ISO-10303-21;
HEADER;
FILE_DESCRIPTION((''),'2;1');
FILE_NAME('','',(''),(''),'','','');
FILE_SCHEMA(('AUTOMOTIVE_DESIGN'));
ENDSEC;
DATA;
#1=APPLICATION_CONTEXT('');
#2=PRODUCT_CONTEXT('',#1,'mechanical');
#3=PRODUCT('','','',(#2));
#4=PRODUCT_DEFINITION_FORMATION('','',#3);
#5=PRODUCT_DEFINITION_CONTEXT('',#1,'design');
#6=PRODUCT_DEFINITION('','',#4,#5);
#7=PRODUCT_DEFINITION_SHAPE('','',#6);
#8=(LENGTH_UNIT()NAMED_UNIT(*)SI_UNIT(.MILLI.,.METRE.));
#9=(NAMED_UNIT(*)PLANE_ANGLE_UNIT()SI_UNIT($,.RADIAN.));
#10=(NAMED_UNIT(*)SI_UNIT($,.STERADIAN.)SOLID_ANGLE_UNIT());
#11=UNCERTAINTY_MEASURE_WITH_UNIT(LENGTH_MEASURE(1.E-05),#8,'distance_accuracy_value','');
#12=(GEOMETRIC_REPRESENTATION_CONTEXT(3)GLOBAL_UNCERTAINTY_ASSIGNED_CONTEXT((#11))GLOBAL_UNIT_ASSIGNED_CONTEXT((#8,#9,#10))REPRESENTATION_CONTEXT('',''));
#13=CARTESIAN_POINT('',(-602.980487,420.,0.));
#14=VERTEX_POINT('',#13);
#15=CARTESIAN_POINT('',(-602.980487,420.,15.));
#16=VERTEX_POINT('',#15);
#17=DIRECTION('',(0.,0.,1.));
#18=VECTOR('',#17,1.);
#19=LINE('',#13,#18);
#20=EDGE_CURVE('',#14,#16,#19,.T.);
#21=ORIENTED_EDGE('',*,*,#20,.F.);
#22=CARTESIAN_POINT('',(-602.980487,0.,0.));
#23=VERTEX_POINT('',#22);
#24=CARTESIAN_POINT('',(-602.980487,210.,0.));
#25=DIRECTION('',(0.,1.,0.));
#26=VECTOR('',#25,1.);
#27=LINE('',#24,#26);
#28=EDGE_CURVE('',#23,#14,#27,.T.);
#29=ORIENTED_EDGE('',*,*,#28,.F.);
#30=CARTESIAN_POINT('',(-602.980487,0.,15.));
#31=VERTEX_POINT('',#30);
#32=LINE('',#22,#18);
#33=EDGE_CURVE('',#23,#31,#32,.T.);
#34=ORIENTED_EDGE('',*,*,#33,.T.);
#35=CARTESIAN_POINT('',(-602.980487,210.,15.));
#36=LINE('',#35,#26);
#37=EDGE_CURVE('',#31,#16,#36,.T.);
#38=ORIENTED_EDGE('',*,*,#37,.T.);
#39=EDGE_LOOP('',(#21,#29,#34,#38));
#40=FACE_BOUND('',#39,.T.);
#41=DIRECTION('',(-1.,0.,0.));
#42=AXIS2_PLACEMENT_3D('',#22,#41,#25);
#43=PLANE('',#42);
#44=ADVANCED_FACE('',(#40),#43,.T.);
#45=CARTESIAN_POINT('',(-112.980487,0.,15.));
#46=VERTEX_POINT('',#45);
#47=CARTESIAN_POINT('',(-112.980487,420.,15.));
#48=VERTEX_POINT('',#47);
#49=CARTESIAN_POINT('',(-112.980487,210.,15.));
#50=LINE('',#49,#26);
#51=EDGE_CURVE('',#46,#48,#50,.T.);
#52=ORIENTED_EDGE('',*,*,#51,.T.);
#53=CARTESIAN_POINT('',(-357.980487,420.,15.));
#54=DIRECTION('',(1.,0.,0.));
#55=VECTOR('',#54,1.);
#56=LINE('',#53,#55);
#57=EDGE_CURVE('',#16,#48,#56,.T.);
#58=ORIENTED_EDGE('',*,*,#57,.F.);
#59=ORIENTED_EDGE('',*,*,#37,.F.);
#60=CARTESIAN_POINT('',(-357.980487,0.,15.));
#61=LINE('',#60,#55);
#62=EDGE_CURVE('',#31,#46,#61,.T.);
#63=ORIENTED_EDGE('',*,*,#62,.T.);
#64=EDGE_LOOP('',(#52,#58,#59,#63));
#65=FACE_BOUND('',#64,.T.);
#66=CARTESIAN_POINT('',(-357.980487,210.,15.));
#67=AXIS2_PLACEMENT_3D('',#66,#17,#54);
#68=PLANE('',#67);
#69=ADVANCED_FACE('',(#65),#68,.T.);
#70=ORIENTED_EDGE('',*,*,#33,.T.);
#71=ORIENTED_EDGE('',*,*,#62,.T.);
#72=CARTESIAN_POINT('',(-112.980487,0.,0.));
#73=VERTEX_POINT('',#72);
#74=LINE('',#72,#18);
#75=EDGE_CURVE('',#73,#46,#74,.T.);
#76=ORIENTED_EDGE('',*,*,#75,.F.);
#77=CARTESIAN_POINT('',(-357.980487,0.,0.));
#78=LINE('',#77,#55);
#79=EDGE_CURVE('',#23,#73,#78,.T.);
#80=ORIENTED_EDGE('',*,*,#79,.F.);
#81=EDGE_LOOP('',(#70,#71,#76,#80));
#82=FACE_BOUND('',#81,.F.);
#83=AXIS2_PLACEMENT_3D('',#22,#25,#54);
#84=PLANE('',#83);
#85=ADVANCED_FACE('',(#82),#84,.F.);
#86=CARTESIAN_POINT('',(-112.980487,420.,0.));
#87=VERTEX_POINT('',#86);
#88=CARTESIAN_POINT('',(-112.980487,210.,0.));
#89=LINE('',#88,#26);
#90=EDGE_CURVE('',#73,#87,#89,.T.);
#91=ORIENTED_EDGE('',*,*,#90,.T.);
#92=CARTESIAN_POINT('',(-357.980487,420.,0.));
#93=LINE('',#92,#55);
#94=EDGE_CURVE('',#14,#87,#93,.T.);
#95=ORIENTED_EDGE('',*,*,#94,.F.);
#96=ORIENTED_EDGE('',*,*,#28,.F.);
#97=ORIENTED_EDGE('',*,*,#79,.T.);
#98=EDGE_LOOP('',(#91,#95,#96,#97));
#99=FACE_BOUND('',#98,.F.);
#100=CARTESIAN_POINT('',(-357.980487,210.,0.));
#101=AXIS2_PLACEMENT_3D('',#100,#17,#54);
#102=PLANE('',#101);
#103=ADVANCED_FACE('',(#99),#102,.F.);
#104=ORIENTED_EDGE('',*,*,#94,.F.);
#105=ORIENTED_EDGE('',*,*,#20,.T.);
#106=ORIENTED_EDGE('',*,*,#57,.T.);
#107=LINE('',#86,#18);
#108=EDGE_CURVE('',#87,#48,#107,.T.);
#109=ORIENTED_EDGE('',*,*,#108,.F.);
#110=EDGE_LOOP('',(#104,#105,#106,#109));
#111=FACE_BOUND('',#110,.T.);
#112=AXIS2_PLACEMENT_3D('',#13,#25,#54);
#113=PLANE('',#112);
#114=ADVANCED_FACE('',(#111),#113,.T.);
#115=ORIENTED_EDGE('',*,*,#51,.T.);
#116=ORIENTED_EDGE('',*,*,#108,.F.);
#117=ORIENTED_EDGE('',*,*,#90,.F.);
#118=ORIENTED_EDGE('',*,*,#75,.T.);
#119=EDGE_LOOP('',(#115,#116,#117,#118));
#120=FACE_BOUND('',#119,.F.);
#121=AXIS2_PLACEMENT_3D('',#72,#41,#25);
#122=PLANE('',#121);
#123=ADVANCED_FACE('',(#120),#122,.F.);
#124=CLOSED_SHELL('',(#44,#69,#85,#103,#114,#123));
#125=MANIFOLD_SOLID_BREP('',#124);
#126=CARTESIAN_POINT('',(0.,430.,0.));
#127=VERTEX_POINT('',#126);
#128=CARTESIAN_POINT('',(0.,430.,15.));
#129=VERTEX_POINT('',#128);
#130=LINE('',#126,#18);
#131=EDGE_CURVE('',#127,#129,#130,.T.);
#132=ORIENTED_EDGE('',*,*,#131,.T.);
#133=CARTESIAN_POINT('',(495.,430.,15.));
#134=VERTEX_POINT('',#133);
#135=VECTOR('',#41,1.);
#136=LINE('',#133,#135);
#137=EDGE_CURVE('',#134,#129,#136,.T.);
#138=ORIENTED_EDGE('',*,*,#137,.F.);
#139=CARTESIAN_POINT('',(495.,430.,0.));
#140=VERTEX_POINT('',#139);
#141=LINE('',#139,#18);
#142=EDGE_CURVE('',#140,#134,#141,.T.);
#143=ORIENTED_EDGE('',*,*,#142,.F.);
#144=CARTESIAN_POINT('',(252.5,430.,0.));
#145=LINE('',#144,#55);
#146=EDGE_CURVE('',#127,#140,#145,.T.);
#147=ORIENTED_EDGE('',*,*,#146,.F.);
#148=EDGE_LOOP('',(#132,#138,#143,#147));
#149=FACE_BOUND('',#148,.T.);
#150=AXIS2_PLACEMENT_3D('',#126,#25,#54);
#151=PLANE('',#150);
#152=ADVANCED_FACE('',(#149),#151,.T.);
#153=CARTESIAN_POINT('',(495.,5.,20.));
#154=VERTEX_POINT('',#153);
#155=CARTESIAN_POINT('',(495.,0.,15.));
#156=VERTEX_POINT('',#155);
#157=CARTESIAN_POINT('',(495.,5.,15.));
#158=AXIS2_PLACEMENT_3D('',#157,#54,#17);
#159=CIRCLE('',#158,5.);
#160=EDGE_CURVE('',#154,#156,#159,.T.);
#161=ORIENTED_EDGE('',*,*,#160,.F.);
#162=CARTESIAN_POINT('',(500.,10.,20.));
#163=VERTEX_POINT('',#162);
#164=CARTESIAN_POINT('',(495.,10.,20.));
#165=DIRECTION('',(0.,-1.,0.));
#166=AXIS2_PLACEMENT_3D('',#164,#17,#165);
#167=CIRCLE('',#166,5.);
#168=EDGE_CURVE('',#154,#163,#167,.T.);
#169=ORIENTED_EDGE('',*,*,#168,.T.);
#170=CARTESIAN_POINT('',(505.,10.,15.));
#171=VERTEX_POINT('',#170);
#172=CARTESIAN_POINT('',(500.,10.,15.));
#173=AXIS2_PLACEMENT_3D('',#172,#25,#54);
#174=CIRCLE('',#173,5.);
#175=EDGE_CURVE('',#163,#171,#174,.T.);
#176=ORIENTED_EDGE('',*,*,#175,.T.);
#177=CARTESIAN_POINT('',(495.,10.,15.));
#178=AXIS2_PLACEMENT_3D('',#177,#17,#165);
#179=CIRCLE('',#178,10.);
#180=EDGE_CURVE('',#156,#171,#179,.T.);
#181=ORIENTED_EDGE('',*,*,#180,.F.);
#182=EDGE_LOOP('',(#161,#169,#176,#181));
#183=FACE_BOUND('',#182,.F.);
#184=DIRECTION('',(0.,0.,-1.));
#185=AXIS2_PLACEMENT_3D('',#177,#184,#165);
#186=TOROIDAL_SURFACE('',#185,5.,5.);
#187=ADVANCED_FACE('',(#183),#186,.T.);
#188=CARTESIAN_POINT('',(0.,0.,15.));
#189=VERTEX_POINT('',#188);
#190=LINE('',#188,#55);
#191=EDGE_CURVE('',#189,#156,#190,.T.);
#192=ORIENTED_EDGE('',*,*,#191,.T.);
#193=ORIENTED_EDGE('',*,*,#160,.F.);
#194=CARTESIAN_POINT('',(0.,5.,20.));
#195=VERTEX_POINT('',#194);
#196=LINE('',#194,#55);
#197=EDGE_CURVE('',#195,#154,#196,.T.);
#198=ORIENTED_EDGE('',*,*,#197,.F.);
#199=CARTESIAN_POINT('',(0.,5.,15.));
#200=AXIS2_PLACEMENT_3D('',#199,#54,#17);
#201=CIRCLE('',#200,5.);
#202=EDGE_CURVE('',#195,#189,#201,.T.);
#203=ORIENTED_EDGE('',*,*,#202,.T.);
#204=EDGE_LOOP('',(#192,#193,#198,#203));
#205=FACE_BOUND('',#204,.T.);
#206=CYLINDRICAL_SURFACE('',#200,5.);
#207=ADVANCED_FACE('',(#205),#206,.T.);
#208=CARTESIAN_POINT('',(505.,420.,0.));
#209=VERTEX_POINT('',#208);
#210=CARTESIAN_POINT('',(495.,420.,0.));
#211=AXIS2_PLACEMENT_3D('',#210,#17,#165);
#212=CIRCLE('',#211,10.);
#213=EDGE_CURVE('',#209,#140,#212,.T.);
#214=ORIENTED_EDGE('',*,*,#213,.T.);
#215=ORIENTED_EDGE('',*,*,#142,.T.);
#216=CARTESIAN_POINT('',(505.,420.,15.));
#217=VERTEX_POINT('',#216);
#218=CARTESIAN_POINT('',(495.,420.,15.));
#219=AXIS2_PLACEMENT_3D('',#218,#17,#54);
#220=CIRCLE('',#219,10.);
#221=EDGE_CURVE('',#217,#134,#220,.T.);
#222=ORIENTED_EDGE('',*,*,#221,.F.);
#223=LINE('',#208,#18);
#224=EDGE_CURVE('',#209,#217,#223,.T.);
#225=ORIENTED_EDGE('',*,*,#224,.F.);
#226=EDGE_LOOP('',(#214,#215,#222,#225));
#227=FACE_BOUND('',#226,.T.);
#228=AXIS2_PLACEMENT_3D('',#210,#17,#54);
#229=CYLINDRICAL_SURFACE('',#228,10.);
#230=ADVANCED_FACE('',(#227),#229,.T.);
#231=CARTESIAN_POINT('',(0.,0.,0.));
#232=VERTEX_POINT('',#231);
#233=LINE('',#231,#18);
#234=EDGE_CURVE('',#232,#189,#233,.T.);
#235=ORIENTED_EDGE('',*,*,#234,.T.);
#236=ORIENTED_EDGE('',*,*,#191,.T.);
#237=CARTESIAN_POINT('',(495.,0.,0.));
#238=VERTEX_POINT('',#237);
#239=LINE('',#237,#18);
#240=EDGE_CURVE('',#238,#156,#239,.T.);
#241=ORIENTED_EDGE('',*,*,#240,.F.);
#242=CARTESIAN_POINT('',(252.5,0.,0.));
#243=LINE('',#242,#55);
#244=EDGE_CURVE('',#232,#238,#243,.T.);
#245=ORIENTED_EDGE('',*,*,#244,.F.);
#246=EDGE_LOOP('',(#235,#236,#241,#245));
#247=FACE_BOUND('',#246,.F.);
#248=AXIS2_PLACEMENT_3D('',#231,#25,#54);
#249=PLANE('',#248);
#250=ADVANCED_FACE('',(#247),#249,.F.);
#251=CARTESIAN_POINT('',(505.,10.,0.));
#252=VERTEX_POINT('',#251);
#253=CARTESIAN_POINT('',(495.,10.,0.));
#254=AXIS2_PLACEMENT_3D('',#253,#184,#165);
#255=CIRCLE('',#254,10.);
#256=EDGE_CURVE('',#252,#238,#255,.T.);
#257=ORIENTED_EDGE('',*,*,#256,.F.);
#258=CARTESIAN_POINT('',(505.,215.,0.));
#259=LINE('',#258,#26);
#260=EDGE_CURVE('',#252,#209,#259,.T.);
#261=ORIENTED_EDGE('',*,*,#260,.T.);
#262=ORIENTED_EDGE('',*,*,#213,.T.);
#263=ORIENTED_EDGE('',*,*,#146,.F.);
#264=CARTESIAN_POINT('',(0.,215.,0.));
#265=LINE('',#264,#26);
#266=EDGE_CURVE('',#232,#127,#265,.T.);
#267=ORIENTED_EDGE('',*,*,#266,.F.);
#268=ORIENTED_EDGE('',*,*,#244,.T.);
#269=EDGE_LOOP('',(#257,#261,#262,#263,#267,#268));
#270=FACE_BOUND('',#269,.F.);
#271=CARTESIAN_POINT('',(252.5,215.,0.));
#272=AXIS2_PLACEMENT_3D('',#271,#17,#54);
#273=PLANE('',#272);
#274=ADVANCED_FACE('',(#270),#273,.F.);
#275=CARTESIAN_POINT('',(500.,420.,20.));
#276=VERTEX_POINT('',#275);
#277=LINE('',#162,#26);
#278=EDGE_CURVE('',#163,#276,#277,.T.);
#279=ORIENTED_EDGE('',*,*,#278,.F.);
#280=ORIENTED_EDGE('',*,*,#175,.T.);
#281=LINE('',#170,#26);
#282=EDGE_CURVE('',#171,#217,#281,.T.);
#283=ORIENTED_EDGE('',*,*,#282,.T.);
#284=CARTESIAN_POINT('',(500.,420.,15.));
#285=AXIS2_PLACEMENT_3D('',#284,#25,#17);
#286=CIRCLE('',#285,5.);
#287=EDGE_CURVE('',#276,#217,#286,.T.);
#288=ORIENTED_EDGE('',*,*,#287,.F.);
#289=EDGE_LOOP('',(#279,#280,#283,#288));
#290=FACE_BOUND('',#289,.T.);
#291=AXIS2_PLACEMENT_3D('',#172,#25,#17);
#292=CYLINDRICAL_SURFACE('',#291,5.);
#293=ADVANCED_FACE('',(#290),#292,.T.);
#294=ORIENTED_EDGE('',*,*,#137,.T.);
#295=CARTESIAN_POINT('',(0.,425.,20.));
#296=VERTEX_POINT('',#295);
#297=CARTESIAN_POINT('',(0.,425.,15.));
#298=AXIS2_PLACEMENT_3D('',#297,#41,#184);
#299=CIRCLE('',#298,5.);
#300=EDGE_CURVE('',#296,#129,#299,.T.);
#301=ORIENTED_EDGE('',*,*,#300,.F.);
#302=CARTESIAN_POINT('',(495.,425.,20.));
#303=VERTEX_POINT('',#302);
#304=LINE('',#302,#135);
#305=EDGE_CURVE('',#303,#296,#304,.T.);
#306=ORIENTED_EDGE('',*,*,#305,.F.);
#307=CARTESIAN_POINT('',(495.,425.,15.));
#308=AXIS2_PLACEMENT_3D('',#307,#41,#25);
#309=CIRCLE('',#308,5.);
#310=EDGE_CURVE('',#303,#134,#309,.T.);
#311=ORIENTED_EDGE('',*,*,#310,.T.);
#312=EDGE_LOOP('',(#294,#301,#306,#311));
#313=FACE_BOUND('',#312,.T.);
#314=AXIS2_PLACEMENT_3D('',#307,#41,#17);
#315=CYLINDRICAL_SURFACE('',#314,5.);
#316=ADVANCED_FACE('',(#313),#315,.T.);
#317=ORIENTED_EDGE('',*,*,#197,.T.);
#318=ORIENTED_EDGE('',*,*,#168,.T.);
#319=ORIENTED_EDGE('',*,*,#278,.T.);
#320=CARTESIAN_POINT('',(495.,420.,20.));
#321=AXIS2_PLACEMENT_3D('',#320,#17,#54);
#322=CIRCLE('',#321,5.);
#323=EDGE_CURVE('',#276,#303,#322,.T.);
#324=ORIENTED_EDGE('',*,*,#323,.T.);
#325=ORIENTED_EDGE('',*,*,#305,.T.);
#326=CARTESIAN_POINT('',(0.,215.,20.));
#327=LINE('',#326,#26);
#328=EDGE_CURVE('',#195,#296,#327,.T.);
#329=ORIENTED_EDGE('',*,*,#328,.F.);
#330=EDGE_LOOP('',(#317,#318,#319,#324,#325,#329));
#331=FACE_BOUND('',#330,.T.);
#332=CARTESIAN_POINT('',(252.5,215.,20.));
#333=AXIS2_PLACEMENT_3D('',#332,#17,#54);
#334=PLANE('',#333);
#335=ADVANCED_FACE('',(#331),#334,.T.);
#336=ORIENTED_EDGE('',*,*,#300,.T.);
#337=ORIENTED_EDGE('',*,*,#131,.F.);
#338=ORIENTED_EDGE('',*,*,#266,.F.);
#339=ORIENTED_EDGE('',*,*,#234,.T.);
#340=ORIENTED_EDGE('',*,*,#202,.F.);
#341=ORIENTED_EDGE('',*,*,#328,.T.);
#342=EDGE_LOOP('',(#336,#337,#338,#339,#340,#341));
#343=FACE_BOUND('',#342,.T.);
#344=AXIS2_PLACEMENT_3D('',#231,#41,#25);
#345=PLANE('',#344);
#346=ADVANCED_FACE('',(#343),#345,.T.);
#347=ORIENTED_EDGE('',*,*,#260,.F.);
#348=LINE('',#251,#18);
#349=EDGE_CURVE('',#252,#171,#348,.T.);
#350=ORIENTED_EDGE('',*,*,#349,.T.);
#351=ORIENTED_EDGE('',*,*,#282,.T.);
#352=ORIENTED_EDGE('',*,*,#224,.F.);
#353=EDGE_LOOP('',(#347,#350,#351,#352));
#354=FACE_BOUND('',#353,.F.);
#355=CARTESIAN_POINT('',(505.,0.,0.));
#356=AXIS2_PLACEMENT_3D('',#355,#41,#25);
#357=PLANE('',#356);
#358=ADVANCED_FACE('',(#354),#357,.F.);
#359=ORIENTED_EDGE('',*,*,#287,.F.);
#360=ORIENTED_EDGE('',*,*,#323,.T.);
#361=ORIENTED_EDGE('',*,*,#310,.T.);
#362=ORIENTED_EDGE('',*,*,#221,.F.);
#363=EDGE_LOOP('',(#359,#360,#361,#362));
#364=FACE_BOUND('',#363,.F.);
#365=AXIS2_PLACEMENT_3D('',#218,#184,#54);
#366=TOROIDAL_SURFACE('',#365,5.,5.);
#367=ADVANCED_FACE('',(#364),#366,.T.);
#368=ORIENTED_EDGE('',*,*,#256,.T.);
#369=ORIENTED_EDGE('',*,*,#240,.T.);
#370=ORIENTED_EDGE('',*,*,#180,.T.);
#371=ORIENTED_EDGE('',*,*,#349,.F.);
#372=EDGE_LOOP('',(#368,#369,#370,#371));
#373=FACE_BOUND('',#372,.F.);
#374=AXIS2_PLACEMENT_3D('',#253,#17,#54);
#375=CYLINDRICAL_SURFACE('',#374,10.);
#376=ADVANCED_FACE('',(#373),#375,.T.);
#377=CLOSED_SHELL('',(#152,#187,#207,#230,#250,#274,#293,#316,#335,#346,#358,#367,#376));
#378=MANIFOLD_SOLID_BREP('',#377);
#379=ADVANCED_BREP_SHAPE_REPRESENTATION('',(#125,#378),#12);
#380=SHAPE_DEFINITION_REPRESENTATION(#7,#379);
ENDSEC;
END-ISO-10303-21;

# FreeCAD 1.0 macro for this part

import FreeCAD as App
import Part
import Sketcher
from FreeCAD import Vector


def edges_at(feature, points):
    """Names of the edges that pass closest to the given points."""
    edges = feature.Shape.Edges
    near = lambda p: min(range(len(edges)), key=lambda i: edges[i].distToShape(Part.Vertex(*p))[0])
    return sorted({f"Edge{near(p) + 1}" for p in points})

doc = App.newDocument("Part")
body = doc.addObject("PartDesign::Body", "Body")

# Sketch on XY plane
sketch1 = body.newObject("Sketcher::SketchObject", "Sketch")
sketch1.AttachmentSupport = (doc.getObject("XY_Plane"), [""])
sketch1.MapMode = "FlatFace"
sketch1.addGeometry([
    Part.LineSegment(Vector(0, 430, 0), Vector(0, 0, 0)),
    Part.LineSegment(Vector(0, 0, 0), Vector(505, 0, 0)),
    Part.LineSegment(Vector(505, 0, 0), Vector(505, 430, 0)),
    Part.LineSegment(Vector(505, 430, 0), Vector(0, 430, 0)),
], False)
sketch1.addConstraint([
    Sketcher.Constraint("Coincident", 0, 2, 1, 1),
    Sketcher.Constraint("Coincident", 1, 2, 2, 1),
    Sketcher.Constraint("Coincident", 2, 2, 3, 1),
    Sketcher.Constraint("Coincident", 3, 2, 0, 1),
    Sketcher.Constraint("Vertical", 0),
    Sketcher.Constraint("Horizontal", 1),
    Sketcher.Constraint("Vertical", 2),
    Sketcher.Constraint("Horizontal", 3),
    Sketcher.Constraint("Coincident", 0, 2, -1, 1),
    Sketcher.Constraint("DistanceX", 1, 1, 1, 2, 505.0),
    Sketcher.Constraint("DistanceY", 0, 2, 0, 1, 430.0),
])
pad1 = body.newObject("PartDesign::Pad", "Pad")
pad1.Profile = sketch1
pad1.Length = 20
doc.recompute()

fillet = body.newObject("PartDesign::Fillet", "Fillet")
fillet.Base = (pad1, edges_at(pad1, [(505, 430, 10)]))
fillet.Radius = 10
doc.recompute()

fillet2 = body.newObject("PartDesign::Fillet", "Fillet001")
fillet2.Base = (fillet, edges_at(fillet, [(505, 0, 10)]))
fillet2.Radius = 10
doc.recompute()

fillet3 = body.newObject("PartDesign::Fillet", "Fillet002")
fillet3.Base = (fillet2, edges_at(fillet2, [(247.5, 0, 20)]))
fillet3.Radius = 5
body2 = doc.addObject("PartDesign::Body", "Body001")

# Sketch on XY plane
sketch2 = body2.newObject("Sketcher::SketchObject", "Sketch001")
sketch2.AttachmentSupport = (doc.getObject("XY_Plane001"), [""])
sketch2.MapMode = "FlatFace"
sketch2.addGeometry([
    Part.LineSegment(Vector(-603, 420, 0), Vector(-603, 0, 0)),
    Part.LineSegment(Vector(-603, 0, 0), Vector(-113, 0, 0)),
    Part.LineSegment(Vector(-113, 0, 0), Vector(-113, 420, 0)),
    Part.LineSegment(Vector(-113, 420, 0), Vector(-603, 420, 0)),
], False)
sketch2.addConstraint([
    Sketcher.Constraint("Coincident", 0, 2, 1, 1),
    Sketcher.Constraint("Coincident", 1, 2, 2, 1),
    Sketcher.Constraint("Coincident", 2, 2, 3, 1),
    Sketcher.Constraint("Coincident", 3, 2, 0, 1),
    Sketcher.Constraint("Vertical", 0),
    Sketcher.Constraint("Horizontal", 1),
    Sketcher.Constraint("Vertical", 2),
    Sketcher.Constraint("Horizontal", 3),
    Sketcher.Constraint("PointOnObject", 0, 2, -1),
    Sketcher.Constraint("DistanceX", 1, 1, 1, 2, 490.0),
    Sketcher.Constraint("DistanceY", 0, 2, 0, 1, 420.0),
    Sketcher.Constraint("DistanceX", 0, 2, -1, 1, 602.980487),
])
pad2 = body2.newObject("PartDesign::Pad", "Pad001")
pad2.Profile = sketch2
pad2.Length = 15

doc.recompute()
